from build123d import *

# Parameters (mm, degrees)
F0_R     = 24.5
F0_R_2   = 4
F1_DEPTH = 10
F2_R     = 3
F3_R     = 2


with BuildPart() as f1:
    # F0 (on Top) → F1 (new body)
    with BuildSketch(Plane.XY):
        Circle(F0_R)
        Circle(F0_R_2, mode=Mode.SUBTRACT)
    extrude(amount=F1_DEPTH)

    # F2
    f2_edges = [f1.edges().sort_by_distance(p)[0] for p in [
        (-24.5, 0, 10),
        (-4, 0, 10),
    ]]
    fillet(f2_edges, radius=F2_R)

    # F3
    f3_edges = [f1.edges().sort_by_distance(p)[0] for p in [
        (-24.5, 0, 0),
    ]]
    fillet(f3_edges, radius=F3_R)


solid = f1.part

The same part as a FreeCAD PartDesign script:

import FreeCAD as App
import Part
import Sketcher
from FreeCAD import Vector


def edges_at(feature, points):
    """Names of the edges that pass closest to the given points."""
    edges = feature.Shape.Edges
    near = lambda p: min(range(len(edges)), key=lambda i: edges[i].distToShape(Part.Vertex(*p))[0])
    return sorted({f"Edge{near(p) + 1}" for p in points})

doc = App.newDocument("Part")
body = doc.addObject("PartDesign::Body", "Body")

# Sketch on XY plane
sketch1 = body.newObject("Sketcher::SketchObject", "Sketch")
sketch1.AttachmentSupport = (doc.getObject("XY_Plane"), [""])
sketch1.MapMode = "FlatFace"
sketch1.addGeometry([
    Part.Circle(Vector(0, 0, 0), Vector(0, 0, 1), 24.5),
    Part.Circle(Vector(0, 0, 0), Vector(0, 0, 1), 4),
], False)
sketch1.addConstraint([
    Sketcher.Constraint("Coincident", 0, 3, -1, 1),
    Sketcher.Constraint("Coincident", 1, 3, -1, 1),
    Sketcher.Constraint("Diameter", 0, 49.0),
    Sketcher.Constraint("Diameter", 1, 8.0),
])
pad1 = body.newObject("PartDesign::Pad", "Pad")
pad1.Profile = sketch1
pad1.Length = 10
doc.recompute()

fillet = body.newObject("PartDesign::Fillet", "Fillet")
fillet.Base = (pad1, edges_at(pad1, [(-24.5, 0, 10), (-4, 0, 10)]))
fillet.Radius = 3
doc.recompute()

fillet2 = body.newObject("PartDesign::Fillet", "Fillet001")
fillet2.Base = (fillet, edges_at(fillet, [(-24.5, 0, 0)]))
fillet2.Radius = 2

doc.recompute()
